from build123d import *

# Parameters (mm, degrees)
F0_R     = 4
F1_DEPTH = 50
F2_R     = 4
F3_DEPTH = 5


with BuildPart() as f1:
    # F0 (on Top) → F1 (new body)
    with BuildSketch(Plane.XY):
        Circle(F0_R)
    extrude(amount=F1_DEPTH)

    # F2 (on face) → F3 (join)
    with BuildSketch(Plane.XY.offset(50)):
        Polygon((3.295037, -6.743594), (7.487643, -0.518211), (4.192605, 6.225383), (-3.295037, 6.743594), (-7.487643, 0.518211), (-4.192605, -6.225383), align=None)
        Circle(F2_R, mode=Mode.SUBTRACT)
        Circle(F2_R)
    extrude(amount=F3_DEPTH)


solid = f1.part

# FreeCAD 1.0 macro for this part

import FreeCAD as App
import Part
import Sketcher
from FreeCAD import Vector
Q = App.Units.Quantity

doc = App.newDocument("Part")
body = doc.addObject("PartDesign::Body", "Body")

# Sketch on XY plane
sketch1 = body.newObject("Sketcher::SketchObject", "Sketch")
sketch1.AttachmentSupport = (doc.getObject("XY_Plane"), [""])
sketch1.MapMode = "FlatFace"
sketch1.addGeometry(Part.Circle(Vector(0, 0, 0), Vector(0, 0, 1), 4), False)
sketch1.addConstraint([
    Sketcher.Constraint("Coincident", 0, 3, -1, 1),
    Sketcher.Constraint("Diameter", 0, Q("8 mm")),
])
pad1 = body.newObject("PartDesign::Pad", "Pad")
pad1.Profile = sketch1
pad1.Length = 50

# Sketch on XY plane
sketch2 = body.newObject("Sketcher::SketchObject", "Sketch001")
sketch2.AttachmentSupport = (doc.getObject("XY_Plane"), [""])
sketch2.MapMode = "FlatFace"
sketch2.AttachmentOffset = App.Placement(Vector(0, 0, 50), App.Rotation())
sketch2.addGeometry([
    Part.LineSegment(Vector(3, -7, 0), Vector(7, -1, 0)),  # 0
    Part.LineSegment(Vector(7, -1, 0), Vector(4, 6, 0)),  # 1
    Part.LineSegment(Vector(4, 6, 0), Vector(-3, 7, 0)),  # 2
    Part.LineSegment(Vector(-3, 7, 0), Vector(-7, 1, 0)),  # 3
    Part.LineSegment(Vector(-7, 1, 0), Vector(-4, -6, 0)),  # 4
    Part.LineSegment(Vector(-4, -6, 0), Vector(3, -7, 0)),  # 5
], False)
sketch2.addConstraint([
    Sketcher.Constraint("Coincident", 0, 2, 1, 1),
    Sketcher.Constraint("Coincident", 1, 2, 2, 1),
    Sketcher.Constraint("Coincident", 2, 2, 3, 1),
    Sketcher.Constraint("Coincident", 3, 2, 4, 1),
    Sketcher.Constraint("Coincident", 4, 2, 5, 1),
    Sketcher.Constraint("Coincident", 5, 2, 0, 1),
    Sketcher.Constraint("Symmetric", 0, 2, 3, 2, -1, 1),
    Sketcher.Constraint("Symmetric", 1, 2, 4, 2, -1, 1),
    Sketcher.Constraint("Symmetric", 2, 2, 5, 2, -1, 1),
    Sketcher.Constraint("Equal", 0, 1),
    Sketcher.Constraint("Equal", 1, 2),
    Sketcher.Constraint("DistanceY", 0, 2, -1, 1, Q("0.518211 mm")),
    Sketcher.Constraint("DistanceY", 1, 2, 2, 2, Q("0.518211 mm")),
    Sketcher.Constraint("DistanceX", 2, 2, 0, 2, Q("10.78268 mm")),
    Sketcher.Constraint("DistanceX", 3, 2, 1, 2, Q("11.680248 mm")),
])
pad2 = body.newObject("PartDesign::Pad", "Pad001")
pad2.Profile = sketch2
pad2.Length = 5

doc.recompute()
